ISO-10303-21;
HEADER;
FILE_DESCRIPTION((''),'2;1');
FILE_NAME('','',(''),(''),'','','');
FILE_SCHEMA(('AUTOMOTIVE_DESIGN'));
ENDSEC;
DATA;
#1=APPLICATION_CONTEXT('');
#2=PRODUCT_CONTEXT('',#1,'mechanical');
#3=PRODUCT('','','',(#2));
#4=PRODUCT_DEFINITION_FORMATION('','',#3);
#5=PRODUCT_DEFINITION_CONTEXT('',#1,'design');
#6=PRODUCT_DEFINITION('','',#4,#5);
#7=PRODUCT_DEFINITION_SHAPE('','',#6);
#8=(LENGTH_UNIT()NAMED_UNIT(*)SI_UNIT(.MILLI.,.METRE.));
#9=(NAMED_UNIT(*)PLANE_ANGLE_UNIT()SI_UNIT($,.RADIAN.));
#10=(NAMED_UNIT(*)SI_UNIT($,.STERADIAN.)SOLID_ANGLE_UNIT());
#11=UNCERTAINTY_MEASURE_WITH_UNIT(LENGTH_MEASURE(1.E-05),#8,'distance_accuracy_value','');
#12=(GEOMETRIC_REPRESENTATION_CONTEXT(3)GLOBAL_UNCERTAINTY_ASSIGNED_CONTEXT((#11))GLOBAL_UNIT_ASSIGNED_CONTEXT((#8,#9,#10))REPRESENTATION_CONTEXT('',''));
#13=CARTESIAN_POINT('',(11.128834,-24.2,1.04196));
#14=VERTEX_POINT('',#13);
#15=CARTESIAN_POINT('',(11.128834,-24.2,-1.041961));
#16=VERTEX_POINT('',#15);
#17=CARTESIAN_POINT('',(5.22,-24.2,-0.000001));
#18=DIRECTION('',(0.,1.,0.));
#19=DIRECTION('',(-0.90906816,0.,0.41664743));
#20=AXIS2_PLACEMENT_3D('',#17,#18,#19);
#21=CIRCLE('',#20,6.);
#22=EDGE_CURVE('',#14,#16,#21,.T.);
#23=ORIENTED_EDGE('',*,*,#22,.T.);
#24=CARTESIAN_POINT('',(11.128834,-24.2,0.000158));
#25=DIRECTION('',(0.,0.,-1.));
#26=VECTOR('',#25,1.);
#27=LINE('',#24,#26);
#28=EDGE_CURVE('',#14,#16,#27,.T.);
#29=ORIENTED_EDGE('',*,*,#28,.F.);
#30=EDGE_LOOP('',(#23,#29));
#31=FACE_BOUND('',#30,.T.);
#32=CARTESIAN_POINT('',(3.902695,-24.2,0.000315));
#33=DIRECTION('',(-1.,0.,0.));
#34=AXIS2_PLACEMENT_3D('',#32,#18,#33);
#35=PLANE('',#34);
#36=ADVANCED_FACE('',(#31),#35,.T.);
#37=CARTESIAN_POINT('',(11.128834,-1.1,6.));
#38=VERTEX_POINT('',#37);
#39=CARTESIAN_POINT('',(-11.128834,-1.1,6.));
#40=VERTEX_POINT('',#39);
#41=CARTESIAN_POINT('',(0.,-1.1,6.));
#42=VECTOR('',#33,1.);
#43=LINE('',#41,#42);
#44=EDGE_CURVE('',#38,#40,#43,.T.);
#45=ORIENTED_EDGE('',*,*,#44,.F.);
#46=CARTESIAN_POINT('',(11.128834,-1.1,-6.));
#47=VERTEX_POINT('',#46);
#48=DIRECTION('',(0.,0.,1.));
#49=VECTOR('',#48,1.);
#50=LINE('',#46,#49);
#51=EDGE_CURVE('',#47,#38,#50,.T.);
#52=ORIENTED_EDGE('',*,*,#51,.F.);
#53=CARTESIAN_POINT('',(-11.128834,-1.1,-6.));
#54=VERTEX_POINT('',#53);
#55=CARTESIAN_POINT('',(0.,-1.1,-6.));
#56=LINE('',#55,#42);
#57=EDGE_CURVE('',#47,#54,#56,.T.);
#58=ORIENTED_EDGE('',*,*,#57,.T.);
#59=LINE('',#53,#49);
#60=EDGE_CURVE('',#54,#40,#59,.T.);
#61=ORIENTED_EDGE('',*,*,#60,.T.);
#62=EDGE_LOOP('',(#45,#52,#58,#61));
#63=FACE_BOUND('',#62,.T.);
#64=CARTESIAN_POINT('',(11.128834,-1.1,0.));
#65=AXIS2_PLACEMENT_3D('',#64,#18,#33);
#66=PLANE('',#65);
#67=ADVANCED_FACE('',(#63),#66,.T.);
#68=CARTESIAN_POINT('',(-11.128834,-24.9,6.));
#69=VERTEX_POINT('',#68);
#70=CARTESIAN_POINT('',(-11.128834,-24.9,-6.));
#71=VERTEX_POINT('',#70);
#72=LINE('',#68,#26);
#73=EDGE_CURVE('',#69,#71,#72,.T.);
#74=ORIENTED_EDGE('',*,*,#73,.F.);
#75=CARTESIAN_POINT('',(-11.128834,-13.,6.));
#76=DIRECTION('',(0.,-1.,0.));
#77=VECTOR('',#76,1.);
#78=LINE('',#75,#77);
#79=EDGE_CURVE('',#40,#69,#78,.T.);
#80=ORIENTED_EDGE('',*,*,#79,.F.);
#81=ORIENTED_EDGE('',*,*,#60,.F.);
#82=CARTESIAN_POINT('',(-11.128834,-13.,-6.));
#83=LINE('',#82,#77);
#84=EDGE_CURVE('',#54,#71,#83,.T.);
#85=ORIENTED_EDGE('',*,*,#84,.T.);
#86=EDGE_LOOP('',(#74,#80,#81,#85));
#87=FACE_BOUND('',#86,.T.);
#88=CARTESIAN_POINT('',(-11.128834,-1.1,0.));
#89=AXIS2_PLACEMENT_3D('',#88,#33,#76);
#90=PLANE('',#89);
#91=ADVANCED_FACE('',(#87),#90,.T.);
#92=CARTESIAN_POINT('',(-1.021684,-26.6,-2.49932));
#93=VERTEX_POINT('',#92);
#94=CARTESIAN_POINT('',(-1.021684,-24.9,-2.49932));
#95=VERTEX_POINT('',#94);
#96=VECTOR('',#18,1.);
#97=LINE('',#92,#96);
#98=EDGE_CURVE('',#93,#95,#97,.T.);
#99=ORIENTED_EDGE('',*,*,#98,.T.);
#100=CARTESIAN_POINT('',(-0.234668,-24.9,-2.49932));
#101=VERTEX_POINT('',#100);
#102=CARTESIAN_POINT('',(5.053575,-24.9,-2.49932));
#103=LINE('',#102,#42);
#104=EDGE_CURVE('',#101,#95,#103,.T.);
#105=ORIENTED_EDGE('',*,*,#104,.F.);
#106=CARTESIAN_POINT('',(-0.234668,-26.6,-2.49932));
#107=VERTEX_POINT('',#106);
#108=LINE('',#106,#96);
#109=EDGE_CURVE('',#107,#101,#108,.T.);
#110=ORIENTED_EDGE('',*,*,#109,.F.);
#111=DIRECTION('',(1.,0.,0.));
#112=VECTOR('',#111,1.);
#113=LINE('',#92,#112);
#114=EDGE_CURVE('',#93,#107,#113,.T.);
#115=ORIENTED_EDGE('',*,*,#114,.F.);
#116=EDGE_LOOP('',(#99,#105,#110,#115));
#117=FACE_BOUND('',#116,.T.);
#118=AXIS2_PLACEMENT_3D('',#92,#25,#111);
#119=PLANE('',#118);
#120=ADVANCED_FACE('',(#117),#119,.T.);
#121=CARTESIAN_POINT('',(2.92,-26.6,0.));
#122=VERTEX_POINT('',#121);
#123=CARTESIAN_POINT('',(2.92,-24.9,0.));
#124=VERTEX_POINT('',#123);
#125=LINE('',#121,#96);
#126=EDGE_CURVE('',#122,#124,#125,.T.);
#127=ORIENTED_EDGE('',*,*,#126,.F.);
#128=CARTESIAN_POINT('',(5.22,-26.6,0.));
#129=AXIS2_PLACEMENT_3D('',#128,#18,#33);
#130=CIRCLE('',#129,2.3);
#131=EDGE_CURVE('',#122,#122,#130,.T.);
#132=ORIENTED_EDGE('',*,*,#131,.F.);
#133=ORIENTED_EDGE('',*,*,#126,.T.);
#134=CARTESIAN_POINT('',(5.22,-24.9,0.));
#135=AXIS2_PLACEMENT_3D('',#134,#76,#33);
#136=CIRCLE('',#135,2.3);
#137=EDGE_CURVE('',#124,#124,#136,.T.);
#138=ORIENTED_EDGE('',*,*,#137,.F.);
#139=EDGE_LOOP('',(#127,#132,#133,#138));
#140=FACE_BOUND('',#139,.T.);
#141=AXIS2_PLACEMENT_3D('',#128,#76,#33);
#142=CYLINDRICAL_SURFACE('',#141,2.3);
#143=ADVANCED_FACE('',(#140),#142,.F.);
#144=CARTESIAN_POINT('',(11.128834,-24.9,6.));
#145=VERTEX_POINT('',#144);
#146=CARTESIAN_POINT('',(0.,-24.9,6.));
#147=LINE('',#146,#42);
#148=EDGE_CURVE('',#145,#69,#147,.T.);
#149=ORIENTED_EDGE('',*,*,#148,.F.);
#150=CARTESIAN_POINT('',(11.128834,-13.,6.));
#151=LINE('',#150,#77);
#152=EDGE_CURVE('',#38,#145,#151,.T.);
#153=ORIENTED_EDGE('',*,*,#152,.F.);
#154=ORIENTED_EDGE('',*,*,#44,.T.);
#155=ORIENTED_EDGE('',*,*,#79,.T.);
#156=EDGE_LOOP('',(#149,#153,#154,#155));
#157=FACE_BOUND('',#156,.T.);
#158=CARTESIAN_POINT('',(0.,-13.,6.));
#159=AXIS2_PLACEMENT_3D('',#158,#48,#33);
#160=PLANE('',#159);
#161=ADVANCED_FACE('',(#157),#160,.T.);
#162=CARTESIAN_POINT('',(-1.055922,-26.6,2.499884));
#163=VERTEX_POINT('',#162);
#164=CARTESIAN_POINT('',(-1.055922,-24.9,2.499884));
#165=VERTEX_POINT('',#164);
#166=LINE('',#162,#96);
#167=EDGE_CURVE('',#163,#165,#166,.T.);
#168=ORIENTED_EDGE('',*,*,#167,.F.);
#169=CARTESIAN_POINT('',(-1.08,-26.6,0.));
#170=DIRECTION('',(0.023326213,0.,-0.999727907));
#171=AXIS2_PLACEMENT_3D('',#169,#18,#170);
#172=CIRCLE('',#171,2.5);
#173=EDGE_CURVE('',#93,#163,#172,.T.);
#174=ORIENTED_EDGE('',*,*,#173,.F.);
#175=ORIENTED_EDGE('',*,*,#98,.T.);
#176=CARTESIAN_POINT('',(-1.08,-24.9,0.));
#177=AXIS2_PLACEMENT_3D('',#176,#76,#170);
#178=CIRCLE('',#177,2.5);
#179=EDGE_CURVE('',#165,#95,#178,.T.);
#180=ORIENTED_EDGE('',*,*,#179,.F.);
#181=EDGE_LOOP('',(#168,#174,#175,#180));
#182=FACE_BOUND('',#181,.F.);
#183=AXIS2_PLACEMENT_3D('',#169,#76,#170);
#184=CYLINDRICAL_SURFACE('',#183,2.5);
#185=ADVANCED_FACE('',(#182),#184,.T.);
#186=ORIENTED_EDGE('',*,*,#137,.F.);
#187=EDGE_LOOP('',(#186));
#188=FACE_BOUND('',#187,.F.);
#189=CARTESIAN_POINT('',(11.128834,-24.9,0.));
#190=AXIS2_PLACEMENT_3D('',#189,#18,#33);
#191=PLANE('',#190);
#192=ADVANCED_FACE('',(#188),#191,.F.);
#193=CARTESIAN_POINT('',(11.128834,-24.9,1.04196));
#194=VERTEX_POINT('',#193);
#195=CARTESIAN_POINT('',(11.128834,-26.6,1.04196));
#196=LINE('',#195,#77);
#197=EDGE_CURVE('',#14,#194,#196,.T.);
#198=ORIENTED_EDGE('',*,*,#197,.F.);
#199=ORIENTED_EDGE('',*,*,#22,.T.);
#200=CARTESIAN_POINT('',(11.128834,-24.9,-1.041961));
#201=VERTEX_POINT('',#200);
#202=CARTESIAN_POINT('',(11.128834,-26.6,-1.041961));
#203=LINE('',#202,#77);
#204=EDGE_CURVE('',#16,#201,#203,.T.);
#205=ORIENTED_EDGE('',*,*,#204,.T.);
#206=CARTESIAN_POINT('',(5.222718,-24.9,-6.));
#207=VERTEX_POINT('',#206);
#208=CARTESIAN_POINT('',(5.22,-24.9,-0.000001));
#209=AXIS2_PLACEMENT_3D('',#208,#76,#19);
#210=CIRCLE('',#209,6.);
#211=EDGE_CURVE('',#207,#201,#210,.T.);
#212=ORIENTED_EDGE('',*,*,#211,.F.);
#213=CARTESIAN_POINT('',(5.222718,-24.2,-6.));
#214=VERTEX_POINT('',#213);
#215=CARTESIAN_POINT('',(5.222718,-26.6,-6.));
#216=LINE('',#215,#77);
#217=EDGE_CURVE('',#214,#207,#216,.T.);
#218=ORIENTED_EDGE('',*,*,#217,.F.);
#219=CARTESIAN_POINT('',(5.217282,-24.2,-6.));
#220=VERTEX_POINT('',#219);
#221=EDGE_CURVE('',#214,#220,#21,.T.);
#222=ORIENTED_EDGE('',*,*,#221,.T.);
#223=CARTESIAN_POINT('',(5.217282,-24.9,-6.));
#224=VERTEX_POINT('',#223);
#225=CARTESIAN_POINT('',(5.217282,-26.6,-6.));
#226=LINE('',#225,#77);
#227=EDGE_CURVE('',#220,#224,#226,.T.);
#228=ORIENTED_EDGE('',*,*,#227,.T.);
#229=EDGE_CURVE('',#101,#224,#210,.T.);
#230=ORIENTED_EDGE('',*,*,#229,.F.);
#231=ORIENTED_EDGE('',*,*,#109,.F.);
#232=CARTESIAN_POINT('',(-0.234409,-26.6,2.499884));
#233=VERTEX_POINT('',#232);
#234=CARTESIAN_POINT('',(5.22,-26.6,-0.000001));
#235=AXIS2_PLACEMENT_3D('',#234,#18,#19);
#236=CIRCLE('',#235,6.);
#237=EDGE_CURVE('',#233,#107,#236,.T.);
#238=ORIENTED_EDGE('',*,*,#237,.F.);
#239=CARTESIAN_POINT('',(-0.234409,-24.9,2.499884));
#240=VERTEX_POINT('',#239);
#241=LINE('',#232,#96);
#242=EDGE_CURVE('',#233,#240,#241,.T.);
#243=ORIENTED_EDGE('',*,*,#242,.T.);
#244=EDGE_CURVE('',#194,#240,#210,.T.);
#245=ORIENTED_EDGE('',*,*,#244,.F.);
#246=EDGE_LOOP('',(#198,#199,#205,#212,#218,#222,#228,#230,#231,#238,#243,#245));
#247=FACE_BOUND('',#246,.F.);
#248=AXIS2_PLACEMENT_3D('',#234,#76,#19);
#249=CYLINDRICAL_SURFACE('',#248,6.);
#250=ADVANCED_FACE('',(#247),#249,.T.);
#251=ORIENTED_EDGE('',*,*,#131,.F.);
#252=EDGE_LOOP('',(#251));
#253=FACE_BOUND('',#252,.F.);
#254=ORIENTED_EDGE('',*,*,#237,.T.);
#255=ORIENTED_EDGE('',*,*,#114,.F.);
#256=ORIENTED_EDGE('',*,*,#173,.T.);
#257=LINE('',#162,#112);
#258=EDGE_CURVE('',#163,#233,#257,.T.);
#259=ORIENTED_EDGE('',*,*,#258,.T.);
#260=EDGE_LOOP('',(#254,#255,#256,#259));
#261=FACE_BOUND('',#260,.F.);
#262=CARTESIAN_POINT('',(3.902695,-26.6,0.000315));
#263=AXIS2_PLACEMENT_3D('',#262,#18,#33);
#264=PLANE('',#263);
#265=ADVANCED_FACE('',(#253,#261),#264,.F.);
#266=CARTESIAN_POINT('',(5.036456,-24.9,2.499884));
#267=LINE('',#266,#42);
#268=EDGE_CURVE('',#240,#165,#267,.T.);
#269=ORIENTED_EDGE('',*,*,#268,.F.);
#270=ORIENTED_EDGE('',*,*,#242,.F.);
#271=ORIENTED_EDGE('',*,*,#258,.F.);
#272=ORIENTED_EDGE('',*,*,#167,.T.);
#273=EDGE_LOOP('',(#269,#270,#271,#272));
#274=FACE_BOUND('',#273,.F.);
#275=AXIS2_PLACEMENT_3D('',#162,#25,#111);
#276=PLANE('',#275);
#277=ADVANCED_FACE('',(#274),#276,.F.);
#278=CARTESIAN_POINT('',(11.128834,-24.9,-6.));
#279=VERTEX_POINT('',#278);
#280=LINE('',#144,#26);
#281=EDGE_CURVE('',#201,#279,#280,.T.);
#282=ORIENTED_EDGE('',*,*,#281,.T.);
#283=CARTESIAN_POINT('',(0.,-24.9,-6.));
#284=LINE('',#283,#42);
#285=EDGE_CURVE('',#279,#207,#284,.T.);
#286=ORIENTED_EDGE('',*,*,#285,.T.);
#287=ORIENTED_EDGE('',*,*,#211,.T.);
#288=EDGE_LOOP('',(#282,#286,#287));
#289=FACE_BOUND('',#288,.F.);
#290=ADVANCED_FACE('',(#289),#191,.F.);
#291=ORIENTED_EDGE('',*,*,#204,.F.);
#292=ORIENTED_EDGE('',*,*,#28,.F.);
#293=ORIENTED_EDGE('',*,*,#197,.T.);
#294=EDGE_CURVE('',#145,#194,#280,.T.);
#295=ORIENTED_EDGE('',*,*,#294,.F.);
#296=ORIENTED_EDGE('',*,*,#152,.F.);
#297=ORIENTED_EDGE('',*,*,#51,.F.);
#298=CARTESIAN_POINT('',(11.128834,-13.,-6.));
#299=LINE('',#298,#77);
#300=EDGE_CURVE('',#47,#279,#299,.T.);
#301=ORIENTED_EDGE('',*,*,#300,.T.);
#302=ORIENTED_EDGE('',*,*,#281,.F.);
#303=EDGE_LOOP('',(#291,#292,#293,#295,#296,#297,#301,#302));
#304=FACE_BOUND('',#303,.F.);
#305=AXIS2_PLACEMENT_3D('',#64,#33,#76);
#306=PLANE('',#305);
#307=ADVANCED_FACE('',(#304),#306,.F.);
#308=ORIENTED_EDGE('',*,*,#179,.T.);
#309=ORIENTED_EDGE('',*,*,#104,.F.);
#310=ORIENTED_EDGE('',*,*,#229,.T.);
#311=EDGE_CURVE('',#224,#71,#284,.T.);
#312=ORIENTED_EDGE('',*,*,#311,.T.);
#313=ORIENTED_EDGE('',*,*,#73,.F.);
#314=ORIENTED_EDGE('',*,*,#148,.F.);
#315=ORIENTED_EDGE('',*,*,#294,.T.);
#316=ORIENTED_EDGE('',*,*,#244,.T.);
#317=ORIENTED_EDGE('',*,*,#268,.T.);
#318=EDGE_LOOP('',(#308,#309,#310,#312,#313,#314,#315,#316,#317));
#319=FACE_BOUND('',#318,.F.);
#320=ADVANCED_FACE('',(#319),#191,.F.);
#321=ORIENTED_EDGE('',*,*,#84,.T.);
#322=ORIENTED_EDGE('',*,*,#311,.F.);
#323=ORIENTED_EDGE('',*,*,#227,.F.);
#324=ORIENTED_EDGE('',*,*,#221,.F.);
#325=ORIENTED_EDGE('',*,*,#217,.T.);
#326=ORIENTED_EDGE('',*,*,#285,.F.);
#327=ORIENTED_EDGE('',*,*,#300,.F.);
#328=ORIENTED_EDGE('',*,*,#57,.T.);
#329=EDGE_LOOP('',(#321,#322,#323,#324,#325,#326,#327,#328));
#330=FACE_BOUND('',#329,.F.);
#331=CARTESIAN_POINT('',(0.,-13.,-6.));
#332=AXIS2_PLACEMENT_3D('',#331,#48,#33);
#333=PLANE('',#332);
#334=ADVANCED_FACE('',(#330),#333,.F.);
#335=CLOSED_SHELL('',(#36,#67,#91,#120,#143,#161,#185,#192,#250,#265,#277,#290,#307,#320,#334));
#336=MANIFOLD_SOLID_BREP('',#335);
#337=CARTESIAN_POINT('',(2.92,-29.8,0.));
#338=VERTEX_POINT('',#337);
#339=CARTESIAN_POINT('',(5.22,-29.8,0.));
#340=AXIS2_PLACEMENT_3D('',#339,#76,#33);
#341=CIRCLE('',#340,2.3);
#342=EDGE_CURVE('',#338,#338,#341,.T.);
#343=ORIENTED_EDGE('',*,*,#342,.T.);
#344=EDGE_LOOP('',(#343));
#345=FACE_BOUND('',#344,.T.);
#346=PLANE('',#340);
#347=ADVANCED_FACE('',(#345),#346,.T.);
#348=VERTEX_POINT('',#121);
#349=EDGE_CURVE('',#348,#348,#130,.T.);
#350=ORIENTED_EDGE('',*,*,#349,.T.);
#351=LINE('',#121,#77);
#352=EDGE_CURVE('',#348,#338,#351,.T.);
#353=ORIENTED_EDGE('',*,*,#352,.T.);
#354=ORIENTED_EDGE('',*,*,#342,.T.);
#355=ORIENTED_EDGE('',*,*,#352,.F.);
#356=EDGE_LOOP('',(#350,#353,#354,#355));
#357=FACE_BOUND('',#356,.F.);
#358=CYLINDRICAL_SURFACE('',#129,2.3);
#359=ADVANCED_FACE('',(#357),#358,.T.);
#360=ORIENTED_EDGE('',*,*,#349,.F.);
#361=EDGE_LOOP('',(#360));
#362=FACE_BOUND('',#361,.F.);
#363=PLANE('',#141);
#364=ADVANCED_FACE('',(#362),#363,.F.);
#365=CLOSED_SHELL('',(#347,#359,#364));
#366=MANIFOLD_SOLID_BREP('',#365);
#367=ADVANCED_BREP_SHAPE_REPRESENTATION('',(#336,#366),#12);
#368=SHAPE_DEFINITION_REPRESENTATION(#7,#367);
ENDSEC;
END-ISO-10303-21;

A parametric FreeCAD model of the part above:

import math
import FreeCAD as App
import Part
import Sketcher

doc = App.newDocument("Part")
params = doc.addObject("Spreadsheet::Sheet", "Params")
for row, (alias, value) in enumerate([
    ("sketch1_radius", "6 mm"),
    ("sketch1_diameter", "4.6 mm"),
    ("sketch1_radius2", "2.5 mm"),
    ("pad1_length", "2.4 mm"),
    ("sketch2_diameter", "4.6 mm"),
    ("pad2_length", "3.2 mm"),
    ("sketch3_height", "23.8 mm"),
    ("pad3_length", "12 mm"),
], start=1):
    params.set(f"A{row}", alias)
    params.set(f"B{row}", "=" + value)
    params.setAlias(f"B{row}", alias)

body = doc.addObject("PartDesign::Body", "Body")

# Sketch on XZ plane
sketch1 = doc.addObject("Sketcher::SketchObject", "Sketch")
body.addObject(sketch1)
sketch1.AttachmentSupport = (doc.XZ_Plane, [""])
sketch1.MapMode = "FlatFace"
sketch1.addGeometry(Part.ArcOfCircle(Part.Circle(App.Vector(-5, -0.000001, 0), App.Vector(0, 0, 1), 6), math.radians(24.623106), math.radians(335.382831)), False)
sketch1.addGeometry(Part.LineSegment(App.Vector(0.454668, -2.49932, 0), App.Vector(1.241684, -2.49932, 0)), False)
sketch1.addGeometry(Part.ArcOfCircle(Part.Circle(App.Vector(1.3, 0, 0), App.Vector(0, 0, 1), 2.5), math.radians(-91.336615), math.radians(90.551825)), False)
sketch1.addGeometry(Part.LineSegment(App.Vector(1.275922, 2.499884, 0), App.Vector(0.454409, 2.499884, 0)), False)
sketch1.addGeometry(Part.Circle(App.Vector(-5, 0, 0), App.Vector(0, 0, 1), 2.3), False)
sketch1.addConstraint(Sketcher.Constraint("Coincident", 0, 2, 1, 1))
sketch1.addConstraint(Sketcher.Constraint("Coincident", 1, 2, 2, 1))
sketch1.addConstraint(Sketcher.Constraint("Coincident", 2, 2, 3, 1))
sketch1.addConstraint(Sketcher.Constraint("Coincident", 3, 2, 0, 1))
sketch1.addConstraint(Sketcher.Constraint("Horizontal", 1))
sketch1.addConstraint(Sketcher.Constraint("Horizontal", 3))
sketch1.addConstraint(Sketcher.Constraint("Coincident", 4, 3, 0, 3))
sketch1.addConstraint(Sketcher.Constraint("PointOnObject", 0, 3, -1))
sketch1.addConstraint(Sketcher.Constraint("PointOnObject", 2, 3, -1))
sketch1.addConstraint(Sketcher.Constraint("Radius", 0, 6.0))
sketch1.addConstraint(Sketcher.Constraint("Diameter", 4, 4.6))
sketch1.addConstraint(Sketcher.Constraint("Radius", 2, 2.5))
sketch1.addConstraint(Sketcher.Constraint("DistanceX", 0, 3, -1, 1, 5.0))
sketch1.addConstraint(Sketcher.Constraint("DistanceX", -1, 1, 2, 3, 1.3))
sketch1.addConstraint(Sketcher.Constraint("DistanceX", 1, 1, 1, 2, 0.787016))
sketch1.addConstraint(Sketcher.Constraint("DistanceX", 3, 2, 3, 1, 0.821513))
sketch1.setExpression("Constraints[9]", "Params.sketch1_radius")
sketch1.setExpression("Constraints[10]", "Params.sketch1_diameter")
sketch1.setExpression("Constraints[11]", "Params.sketch1_radius2")
pad1 = doc.addObject("PartDesign::Pad", "Pad")
body.addObject(pad1)
pad1.Profile = sketch1
pad1.setExpression("Length", "Params.pad1_length")
body2 = doc.addObject("PartDesign::Body", "Body001")
doc.recompute()

body.Placement = App.Placement(App.Vector(-0.22, 13.6, 0), App.Rotation(App.Vector(0, 0, 1), 0))
boolean = doc.addObject("PartDesign::Boolean", "Boolean")
body2.addObject(boolean)
boolean.Type = "Fuse"
boolean.addObjects([body])
body3 = doc.addObject("PartDesign::Body", "Body002")

# Sketch on XZ plane
sketch2 = doc.addObject("Sketcher::SketchObject", "Sketch001")
body3.addObject(sketch2)
sketch2.AttachmentSupport = (doc.getObject("XZ_Plane002"), [""])
sketch2.MapMode = "FlatFace"
sketch2.AttachmentOffset = App.Placement(App.Vector(0, 0, -13.6), App.Rotation())
sketch2.addGeometry(Part.Circle(App.Vector(-5.22, 0, 0), App.Vector(0, 0, 1), 2.3), False)
sketch2.addConstraint(Sketcher.Constraint("PointOnObject", 0, 3, -1))
sketch2.addConstraint(Sketcher.Constraint("Diameter", 0, 4.6))
sketch2.addConstraint(Sketcher.Constraint("DistanceX", 0, 3, -1, 1, 5.22))
sketch2.setExpression("Constraints[1]", "Params.sketch2_diameter")
pad2 = doc.addObject("PartDesign::Pad", "Pad001")
body3.addObject(pad2)
pad2.Profile = sketch2
pad2.setExpression("Length", "Params.pad2_length")
pad2.Reversed = True
body4 = doc.addObject("PartDesign::Body", "Body003")
body4.AllowCompound = True

# Sketch on XY plane
sketch3 = doc.addObject("Sketcher::SketchObject", "Sketch002")
body4.addObject(sketch3)
sketch3.AttachmentSupport = (doc.getObject("XY_Plane003"), [""])
sketch3.MapMode = "FlatFace"
sketch3.addGeometry(Part.LineSegment(App.Vector(-11.128834, 11.9, 0), App.Vector(-11.128834, -11.9, 0)), False)
sketch3.addGeometry(Part.LineSegment(App.Vector(-11.128834, -11.9, 0), App.Vector(11.128834, -11.9, 0)), False)
sketch3.addGeometry(Part.LineSegment(App.Vector(11.128834, -11.9, 0), App.Vector(11.128834, 11.9, 0)), False)
sketch3.addGeometry(Part.LineSegment(App.Vector(11.128834, 11.9, 0), App.Vector(-11.128834, 11.9, 0)), False)
sketch3.addConstraint(Sketcher.Constraint("Coincident", 0, 2, 1, 1))
sketch3.addConstraint(Sketcher.Constraint("Coincident", 1, 2, 2, 1))
sketch3.addConstraint(Sketcher.Constraint("Coincident", 2, 2, 3, 1))
sketch3.addConstraint(Sketcher.Constraint("Coincident", 3, 2, 0, 1))
sketch3.addConstraint(Sketcher.Constraint("Vertical", 0))
sketch3.addConstraint(Sketcher.Constraint("Horizontal", 1))
sketch3.addConstraint(Sketcher.Constraint("Vertical", 2))
sketch3.addConstraint(Sketcher.Constraint("Horizontal", 3))
sketch3.addConstraint(Sketcher.Constraint("Symmetric", 0, 2, 2, 2, -1, 1))
sketch3.addConstraint(Sketcher.Constraint("DistanceY", 0, 2, 0, 1, 23.8))
sketch3.addConstraint(Sketcher.Constraint("DistanceX", 1, 1, 1, 2, 22.257668))
sketch3.setExpression("Constraints[9]", "Params.sketch3_height")
pad3 = doc.addObject("PartDesign::Pad", "Pad002")
body4.addObject(pad3)
pad3.Profile = sketch3
pad3.setExpression("Length", "Params.pad3_length")
pad3.Midplane = True
doc.recompute()

boolean2 = doc.addObject("PartDesign::Boolean", "Boolean001")
body4.addObject(boolean2)
boolean2.Type = "Fuse"
boolean2.addObjects([body2])
doc.recompute()

boolean3 = doc.addObject("PartDesign::Boolean", "Boolean002")
body4.addObject(boolean3)
boolean3.Type = "Fuse"
boolean3.addObjects([body3])
body5 = doc.addObject("PartDesign::Body", "Body004")
body5.AllowCompound = True
doc.recompute()

body4.Placement = App.Placement(App.Vector(0, 13, 0), App.Rotation(App.Vector(0, 1, 0), 180))
boolean4 = doc.addObject("PartDesign::Boolean", "Boolean003")
body5.addObject(boolean4)
boolean4.Type = "Fuse"
boolean4.addObjects([body4])
body6 = doc.addObject("PartDesign::Body", "Body005")
body6.AllowCompound = True
doc.recompute()

body5.Placement = App.Placement(App.Vector(0, -1, 0), App.Rotation(App.Vector(0, 0, 1), 0))
boolean5 = doc.addObject("PartDesign::Boolean", "Boolean004")
body6.addObject(boolean5)
boolean5.Type = "Fuse"
boolean5.addObjects([body5])
body7 = doc.addObject("PartDesign::Body", "Body006")
body7.AllowCompound = True
doc.recompute()

body6.Placement = App.Placement(App.Vector(0, -1, 0), App.Rotation(App.Vector(1, 0, 0), 180))
boolean6 = doc.addObject("PartDesign::Boolean", "Boolean005")
body7.addObject(boolean6)
boolean6.Type = "Fuse"
boolean6.addObjects([body6])

doc.recompute()
